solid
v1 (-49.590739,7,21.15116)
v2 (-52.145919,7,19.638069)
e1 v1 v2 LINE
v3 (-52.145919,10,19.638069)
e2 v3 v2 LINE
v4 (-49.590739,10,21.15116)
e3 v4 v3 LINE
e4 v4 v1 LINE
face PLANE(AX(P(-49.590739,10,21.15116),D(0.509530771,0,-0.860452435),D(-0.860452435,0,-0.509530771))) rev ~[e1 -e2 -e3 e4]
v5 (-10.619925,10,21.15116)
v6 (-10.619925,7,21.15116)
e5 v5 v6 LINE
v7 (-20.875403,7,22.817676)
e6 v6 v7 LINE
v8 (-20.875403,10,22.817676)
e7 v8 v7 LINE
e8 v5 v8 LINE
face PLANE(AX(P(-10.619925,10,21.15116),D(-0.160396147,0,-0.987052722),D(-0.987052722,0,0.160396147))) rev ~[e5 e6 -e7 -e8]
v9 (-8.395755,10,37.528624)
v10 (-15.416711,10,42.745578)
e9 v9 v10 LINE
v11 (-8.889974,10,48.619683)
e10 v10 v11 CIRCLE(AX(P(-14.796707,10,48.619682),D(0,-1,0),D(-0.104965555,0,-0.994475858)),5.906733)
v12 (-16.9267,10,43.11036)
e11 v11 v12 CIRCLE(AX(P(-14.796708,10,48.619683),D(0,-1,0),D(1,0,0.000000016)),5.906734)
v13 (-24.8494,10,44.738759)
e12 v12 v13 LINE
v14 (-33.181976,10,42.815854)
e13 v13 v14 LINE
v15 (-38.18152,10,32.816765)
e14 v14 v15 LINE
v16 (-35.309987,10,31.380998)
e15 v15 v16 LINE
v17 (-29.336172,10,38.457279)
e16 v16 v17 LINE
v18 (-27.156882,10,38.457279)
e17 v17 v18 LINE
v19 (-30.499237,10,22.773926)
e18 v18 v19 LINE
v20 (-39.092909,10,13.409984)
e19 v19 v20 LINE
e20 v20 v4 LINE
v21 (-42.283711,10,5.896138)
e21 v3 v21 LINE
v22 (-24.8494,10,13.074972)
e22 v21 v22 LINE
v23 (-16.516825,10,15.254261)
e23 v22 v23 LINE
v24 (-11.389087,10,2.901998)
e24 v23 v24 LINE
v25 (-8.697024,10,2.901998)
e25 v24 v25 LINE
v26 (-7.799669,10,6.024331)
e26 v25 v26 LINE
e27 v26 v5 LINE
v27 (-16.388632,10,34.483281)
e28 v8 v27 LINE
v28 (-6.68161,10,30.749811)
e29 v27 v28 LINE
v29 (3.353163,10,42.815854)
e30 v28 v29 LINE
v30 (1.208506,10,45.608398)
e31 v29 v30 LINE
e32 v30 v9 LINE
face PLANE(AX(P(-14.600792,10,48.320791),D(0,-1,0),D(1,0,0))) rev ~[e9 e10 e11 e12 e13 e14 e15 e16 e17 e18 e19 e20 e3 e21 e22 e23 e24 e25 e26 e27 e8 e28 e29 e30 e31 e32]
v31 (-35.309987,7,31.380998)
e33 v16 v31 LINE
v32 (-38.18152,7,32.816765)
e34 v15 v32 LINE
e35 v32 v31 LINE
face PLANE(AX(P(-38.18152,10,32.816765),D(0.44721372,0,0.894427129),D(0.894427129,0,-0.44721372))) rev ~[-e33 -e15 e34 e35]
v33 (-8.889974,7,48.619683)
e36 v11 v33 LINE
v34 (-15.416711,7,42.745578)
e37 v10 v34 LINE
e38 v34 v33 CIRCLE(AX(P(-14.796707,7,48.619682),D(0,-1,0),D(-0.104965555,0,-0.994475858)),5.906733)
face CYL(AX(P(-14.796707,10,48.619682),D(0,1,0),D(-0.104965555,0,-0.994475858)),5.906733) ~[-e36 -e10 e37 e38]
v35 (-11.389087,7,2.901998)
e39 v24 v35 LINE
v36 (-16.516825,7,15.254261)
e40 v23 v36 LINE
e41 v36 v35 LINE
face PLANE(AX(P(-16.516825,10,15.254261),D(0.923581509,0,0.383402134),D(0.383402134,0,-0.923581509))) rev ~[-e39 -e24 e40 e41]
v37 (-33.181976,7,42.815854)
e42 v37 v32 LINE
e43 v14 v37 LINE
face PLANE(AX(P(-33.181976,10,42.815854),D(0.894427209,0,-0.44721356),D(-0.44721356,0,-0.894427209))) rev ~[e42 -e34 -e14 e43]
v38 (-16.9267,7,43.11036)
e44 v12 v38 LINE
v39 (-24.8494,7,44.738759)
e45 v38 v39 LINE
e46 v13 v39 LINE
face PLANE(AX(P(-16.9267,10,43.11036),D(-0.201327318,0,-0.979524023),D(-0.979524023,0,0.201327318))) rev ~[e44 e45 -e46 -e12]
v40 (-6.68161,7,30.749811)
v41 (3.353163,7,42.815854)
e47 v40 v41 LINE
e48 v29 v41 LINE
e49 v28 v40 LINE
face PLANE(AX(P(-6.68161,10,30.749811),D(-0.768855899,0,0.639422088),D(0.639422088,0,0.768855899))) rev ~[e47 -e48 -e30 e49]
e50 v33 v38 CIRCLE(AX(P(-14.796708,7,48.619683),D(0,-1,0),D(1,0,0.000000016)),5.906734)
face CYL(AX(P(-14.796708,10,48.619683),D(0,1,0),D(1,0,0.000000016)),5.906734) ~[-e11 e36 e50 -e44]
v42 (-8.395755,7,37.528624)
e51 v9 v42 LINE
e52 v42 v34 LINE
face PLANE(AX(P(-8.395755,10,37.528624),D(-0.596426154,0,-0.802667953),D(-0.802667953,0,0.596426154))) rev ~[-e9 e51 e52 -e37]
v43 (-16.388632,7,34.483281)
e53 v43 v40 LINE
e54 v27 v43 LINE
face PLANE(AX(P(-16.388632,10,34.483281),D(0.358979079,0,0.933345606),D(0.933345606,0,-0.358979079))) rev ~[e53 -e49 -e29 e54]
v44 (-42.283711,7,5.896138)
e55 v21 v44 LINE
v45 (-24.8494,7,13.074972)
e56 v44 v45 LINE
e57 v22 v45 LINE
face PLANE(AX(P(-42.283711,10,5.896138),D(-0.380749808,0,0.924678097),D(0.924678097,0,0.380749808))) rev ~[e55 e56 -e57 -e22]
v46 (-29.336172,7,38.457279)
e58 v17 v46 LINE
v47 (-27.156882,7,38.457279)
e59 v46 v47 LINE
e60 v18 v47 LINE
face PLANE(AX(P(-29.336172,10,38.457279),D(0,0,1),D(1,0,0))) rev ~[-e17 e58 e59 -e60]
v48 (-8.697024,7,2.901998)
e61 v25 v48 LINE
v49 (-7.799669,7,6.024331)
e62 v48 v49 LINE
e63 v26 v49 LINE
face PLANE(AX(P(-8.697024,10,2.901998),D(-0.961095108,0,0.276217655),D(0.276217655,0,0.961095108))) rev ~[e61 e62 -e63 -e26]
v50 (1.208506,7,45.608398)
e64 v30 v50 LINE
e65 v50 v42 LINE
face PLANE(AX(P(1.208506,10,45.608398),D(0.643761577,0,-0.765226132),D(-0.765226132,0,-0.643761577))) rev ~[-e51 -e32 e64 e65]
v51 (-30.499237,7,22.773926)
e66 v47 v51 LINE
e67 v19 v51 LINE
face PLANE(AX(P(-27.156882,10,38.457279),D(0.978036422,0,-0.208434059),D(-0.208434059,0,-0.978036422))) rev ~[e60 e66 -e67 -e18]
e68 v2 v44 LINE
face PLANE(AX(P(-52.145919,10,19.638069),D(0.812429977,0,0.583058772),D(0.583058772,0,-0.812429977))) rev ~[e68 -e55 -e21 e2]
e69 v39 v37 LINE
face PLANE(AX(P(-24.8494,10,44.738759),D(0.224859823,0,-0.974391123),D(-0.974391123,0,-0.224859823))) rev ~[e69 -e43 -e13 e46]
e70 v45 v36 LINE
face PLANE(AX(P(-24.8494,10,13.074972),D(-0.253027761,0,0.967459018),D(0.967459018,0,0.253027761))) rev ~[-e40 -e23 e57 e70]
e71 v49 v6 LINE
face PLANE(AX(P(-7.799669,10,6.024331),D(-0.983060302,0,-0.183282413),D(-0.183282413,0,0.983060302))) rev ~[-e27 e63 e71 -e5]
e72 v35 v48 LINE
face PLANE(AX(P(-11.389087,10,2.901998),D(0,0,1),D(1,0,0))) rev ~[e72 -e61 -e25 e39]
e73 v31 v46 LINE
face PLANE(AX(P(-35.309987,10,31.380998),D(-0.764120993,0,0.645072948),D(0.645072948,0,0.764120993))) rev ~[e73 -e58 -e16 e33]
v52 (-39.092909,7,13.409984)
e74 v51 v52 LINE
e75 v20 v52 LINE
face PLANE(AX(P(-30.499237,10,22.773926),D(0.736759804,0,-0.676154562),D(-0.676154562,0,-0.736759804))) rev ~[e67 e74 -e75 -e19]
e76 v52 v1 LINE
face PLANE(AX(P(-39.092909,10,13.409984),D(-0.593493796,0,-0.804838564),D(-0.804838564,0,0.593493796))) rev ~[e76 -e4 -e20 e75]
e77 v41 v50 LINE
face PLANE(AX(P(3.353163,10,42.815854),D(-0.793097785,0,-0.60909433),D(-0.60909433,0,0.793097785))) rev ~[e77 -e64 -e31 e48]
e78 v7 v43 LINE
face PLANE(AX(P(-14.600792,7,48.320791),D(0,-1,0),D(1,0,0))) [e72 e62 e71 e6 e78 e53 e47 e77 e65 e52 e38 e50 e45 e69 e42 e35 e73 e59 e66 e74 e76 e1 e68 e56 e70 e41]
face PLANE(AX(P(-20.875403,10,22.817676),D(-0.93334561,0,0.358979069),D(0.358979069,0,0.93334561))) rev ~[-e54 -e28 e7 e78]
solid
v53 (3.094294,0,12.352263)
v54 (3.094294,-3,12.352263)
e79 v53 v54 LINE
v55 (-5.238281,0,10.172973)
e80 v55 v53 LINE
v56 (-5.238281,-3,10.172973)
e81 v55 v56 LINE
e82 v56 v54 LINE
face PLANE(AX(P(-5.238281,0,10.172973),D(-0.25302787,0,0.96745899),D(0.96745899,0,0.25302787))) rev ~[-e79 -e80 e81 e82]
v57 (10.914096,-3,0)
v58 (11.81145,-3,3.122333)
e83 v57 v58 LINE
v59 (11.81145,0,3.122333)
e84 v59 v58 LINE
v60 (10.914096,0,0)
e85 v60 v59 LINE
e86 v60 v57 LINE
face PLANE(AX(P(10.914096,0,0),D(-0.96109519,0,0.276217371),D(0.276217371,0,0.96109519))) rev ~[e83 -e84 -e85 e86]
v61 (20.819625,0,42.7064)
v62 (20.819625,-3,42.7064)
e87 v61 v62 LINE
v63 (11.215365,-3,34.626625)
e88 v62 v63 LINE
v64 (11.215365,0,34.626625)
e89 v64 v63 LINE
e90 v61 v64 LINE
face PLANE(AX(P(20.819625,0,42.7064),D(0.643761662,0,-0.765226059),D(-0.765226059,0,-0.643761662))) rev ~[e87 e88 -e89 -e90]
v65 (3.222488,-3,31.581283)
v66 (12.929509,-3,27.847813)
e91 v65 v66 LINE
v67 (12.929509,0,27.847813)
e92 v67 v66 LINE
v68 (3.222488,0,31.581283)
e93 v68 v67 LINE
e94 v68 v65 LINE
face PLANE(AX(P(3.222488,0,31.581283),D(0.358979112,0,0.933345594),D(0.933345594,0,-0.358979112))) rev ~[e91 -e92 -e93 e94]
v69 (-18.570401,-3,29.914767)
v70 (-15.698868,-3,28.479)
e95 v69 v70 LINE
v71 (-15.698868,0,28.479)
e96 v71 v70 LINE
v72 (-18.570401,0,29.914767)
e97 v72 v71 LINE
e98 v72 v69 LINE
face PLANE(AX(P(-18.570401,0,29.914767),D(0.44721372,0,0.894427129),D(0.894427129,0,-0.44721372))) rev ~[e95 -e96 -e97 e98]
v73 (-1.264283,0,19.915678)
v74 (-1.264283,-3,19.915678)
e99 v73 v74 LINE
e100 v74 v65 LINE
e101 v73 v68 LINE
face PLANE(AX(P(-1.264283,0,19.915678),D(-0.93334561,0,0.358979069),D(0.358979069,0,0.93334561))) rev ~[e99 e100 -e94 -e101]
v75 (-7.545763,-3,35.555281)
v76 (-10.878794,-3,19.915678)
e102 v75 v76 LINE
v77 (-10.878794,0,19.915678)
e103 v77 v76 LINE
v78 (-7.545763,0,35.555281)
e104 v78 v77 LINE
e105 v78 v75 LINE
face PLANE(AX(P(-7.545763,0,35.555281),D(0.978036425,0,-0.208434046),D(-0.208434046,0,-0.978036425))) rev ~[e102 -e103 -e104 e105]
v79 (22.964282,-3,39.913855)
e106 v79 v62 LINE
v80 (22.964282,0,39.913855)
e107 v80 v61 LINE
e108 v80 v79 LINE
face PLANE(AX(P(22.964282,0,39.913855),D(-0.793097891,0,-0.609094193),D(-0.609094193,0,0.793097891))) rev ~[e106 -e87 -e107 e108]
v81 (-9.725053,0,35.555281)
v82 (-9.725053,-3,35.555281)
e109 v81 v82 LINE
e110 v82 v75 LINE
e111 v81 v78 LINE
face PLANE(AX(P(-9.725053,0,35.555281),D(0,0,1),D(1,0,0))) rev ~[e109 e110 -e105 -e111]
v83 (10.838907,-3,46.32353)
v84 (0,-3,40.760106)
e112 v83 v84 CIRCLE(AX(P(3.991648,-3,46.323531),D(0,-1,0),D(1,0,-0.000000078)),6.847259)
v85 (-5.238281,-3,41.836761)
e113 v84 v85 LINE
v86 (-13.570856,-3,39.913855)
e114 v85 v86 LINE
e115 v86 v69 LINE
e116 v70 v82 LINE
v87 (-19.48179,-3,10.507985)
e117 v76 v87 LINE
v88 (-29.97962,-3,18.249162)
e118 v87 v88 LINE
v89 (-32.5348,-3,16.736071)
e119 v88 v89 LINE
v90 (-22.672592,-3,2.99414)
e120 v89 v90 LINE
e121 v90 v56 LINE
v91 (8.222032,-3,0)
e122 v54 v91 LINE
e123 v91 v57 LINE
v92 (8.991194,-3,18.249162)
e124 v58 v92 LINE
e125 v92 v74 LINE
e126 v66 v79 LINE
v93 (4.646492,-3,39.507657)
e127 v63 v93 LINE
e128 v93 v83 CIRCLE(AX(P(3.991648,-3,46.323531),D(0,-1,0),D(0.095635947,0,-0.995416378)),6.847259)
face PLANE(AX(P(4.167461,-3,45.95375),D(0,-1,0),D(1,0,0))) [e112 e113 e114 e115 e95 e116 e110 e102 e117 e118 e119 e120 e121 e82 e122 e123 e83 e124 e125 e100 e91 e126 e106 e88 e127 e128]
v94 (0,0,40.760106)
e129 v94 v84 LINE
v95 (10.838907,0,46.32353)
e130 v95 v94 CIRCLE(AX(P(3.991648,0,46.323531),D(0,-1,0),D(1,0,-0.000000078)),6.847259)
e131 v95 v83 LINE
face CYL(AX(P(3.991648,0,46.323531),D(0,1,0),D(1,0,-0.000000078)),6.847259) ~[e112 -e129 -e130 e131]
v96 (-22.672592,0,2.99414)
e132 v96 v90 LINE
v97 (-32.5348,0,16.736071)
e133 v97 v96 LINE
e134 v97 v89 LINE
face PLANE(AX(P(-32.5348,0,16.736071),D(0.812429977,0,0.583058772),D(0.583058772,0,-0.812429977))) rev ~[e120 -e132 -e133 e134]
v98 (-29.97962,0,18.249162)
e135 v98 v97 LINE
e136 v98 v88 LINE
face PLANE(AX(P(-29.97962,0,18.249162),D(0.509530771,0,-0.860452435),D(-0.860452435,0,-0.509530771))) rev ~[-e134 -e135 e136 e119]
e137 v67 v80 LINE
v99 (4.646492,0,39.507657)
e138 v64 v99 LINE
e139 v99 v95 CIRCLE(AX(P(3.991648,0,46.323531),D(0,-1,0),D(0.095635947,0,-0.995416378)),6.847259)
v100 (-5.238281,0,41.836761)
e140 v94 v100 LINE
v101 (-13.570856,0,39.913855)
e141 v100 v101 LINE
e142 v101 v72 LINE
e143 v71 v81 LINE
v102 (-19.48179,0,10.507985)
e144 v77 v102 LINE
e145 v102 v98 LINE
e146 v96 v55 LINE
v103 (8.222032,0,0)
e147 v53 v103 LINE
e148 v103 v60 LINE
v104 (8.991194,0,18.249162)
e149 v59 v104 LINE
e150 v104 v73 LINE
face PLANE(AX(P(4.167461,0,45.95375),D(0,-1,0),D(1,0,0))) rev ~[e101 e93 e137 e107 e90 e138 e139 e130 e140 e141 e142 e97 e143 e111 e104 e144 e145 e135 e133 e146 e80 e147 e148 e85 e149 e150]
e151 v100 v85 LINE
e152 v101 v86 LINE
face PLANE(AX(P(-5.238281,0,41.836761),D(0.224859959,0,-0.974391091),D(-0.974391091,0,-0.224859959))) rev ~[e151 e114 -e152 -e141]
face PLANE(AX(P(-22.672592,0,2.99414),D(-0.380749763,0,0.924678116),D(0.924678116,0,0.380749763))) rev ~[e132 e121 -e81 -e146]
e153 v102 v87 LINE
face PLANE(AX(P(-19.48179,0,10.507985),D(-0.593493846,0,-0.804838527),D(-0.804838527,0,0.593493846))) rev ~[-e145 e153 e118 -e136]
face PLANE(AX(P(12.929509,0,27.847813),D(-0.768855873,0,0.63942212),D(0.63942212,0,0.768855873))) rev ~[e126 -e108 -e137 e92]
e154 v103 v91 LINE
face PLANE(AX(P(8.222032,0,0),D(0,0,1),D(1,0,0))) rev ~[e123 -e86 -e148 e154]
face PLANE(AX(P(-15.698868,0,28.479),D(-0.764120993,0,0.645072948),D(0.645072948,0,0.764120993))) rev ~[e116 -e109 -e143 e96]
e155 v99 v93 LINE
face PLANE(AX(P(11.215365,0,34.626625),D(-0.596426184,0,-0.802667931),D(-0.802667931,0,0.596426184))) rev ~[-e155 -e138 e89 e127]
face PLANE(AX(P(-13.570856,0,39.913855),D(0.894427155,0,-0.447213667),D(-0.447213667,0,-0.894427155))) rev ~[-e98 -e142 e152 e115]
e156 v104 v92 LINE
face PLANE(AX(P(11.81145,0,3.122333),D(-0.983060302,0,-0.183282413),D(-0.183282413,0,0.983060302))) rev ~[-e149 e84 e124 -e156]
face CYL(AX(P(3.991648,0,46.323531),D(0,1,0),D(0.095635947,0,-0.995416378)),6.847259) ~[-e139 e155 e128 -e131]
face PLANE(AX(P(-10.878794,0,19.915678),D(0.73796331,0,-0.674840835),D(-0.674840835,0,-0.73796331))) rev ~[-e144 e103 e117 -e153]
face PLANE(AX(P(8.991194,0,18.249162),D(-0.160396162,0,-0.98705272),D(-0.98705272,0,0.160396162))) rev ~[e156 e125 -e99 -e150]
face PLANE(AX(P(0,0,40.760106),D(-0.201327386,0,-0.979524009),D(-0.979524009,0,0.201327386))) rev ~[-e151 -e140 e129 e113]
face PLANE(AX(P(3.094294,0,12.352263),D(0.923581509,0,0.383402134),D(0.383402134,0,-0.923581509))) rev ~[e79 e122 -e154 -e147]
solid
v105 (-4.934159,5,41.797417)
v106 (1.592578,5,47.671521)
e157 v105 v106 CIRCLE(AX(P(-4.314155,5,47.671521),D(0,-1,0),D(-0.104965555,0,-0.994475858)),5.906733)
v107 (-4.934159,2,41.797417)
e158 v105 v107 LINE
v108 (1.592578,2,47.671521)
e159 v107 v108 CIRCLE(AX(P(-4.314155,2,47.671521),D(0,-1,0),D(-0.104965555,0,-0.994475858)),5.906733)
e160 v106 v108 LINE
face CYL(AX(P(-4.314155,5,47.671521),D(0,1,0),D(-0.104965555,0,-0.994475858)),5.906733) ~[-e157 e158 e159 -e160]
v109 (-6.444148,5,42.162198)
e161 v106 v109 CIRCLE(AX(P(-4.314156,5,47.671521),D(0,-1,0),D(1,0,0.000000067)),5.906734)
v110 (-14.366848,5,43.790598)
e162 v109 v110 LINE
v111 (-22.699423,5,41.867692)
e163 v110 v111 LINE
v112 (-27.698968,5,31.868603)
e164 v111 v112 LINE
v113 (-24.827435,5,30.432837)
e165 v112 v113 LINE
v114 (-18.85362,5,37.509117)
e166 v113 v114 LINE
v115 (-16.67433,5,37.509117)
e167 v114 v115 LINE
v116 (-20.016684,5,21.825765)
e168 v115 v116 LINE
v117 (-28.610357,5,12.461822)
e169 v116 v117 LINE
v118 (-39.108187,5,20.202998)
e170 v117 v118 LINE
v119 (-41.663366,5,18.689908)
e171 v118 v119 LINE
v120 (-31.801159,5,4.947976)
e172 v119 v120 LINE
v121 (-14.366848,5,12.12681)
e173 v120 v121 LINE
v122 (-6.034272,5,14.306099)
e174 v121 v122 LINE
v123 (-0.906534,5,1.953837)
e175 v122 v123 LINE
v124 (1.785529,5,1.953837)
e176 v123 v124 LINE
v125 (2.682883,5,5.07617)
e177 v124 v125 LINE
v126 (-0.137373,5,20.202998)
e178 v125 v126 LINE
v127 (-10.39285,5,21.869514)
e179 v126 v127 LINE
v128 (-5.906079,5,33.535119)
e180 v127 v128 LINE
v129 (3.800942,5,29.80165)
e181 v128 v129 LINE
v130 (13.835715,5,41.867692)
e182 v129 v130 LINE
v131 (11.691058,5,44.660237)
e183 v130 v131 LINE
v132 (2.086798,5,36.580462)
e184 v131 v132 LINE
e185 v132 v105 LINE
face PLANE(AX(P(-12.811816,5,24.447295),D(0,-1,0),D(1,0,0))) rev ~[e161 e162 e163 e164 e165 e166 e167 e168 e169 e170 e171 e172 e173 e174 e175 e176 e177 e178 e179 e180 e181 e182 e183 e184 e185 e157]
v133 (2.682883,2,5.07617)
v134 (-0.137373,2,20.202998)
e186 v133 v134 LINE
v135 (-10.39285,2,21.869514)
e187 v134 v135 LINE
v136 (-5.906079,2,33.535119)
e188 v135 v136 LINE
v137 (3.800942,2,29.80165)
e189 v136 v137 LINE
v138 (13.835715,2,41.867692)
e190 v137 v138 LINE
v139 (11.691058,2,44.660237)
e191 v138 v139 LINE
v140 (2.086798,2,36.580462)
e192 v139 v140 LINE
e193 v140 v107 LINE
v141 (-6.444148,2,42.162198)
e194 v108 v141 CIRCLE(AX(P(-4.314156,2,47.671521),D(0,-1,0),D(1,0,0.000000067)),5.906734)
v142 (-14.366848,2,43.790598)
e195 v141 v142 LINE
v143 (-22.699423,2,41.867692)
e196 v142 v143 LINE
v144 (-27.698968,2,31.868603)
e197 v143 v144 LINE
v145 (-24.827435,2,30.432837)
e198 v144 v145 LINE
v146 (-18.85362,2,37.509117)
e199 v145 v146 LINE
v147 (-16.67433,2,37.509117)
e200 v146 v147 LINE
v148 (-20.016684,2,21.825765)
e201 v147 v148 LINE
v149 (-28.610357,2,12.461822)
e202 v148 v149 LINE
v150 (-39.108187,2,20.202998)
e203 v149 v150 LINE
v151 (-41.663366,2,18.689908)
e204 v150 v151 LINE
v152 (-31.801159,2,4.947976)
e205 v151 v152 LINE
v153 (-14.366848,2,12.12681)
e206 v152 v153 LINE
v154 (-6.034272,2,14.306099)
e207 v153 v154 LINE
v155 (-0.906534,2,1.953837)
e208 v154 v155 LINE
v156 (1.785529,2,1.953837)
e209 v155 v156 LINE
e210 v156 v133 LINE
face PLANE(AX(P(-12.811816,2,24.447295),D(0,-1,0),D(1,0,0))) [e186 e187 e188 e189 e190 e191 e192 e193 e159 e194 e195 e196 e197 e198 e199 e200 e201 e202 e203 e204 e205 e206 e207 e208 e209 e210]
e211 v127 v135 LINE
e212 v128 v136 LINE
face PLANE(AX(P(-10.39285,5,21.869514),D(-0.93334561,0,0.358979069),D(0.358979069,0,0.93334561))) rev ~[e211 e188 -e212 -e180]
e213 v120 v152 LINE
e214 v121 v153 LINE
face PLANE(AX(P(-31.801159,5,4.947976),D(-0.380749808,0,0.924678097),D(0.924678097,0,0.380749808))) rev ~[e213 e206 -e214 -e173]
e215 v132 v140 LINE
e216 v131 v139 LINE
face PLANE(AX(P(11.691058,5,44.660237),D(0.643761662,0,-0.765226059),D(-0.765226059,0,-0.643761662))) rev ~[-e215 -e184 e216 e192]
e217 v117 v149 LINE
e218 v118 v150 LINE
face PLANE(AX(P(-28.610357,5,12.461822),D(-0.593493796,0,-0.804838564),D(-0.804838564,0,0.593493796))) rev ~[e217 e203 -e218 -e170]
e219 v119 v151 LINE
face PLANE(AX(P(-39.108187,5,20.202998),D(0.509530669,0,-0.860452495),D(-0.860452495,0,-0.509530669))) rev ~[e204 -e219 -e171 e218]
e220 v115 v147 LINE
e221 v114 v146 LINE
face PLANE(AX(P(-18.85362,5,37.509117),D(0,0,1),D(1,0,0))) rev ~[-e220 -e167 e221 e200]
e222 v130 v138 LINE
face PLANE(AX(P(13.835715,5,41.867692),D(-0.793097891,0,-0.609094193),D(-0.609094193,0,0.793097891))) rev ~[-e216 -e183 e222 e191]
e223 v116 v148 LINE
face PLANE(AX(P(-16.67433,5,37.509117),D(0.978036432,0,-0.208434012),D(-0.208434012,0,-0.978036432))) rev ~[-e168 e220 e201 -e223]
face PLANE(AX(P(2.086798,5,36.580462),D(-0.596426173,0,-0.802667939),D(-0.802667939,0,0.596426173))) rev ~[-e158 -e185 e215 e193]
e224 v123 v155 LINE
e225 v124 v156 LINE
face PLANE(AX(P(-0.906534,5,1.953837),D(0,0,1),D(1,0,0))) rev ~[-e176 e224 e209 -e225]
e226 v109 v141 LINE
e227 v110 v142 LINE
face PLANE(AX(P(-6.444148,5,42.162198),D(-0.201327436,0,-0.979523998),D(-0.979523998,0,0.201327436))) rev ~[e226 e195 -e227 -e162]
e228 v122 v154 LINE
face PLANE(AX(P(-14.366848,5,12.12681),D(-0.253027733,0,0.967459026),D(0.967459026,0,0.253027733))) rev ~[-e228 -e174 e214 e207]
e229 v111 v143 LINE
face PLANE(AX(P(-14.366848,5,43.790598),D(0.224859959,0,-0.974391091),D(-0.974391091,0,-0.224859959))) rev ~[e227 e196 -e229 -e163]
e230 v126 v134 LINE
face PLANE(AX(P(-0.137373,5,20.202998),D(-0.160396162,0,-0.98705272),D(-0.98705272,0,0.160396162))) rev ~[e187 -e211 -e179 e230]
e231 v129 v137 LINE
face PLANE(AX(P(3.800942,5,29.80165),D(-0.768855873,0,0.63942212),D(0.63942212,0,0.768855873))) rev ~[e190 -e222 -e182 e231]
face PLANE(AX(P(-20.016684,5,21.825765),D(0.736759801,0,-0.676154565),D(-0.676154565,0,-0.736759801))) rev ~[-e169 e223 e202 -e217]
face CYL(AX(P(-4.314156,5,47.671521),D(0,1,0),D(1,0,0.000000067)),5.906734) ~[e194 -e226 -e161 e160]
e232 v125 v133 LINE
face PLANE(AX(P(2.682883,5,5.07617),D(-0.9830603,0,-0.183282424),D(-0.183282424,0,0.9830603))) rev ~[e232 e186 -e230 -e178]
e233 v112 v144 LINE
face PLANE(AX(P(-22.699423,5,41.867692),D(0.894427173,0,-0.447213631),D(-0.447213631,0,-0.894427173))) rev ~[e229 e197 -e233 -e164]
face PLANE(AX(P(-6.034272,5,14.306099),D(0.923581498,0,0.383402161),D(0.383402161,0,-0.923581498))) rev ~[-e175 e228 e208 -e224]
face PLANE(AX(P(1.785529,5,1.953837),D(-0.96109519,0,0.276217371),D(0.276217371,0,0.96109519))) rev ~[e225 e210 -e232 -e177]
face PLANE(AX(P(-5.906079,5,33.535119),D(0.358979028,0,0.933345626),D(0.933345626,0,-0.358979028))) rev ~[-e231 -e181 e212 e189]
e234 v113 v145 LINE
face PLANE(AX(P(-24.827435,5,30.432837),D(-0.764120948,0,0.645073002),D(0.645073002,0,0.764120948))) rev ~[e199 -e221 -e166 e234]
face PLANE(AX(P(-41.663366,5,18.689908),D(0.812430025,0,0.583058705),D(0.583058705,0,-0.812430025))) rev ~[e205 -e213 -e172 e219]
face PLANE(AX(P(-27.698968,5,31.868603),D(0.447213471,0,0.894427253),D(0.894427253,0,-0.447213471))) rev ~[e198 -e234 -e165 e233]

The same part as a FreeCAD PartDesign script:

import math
import FreeCAD as App
import Part
import Sketcher

V = App.Vector
Q = App.Units.Quantity

doc = App.newDocument("Part")
body = doc.addObject("PartDesign::Body", "Body")

# Sketch on XZ plane
sketch1 = body.newObject("Sketcher::SketchObject", "Sketch")
sketch1.AttachmentSupport = (doc.getObject("XZ_Plane"), [""])
sketch1.MapMode = "FlatFace"
sketch1.addGeometry(Part.ArcOfCircle(Part.Circle(V(3.991648, 46.323531, 0), V(0, 0, 1), 6.847259), math.radians(-84.512076), math.radians(-0.000007)), False)
sketch1.addGeometry(Part.ArcOfCircle(Part.Circle(V(3.991648, 46.323531, 0), V(0, 0, 1), 6.847259), math.radians(-0.000004), math.radians(234.341299)), False)
sketch1.addGeometry(Part.LineSegment(V(0, 40.760106, 0), V(-5.238281, 41.836761, 0)), False)
sketch1.addGeometry(Part.LineSegment(V(-5.238281, 41.836761, 0), V(-13.570856, 39.913855, 0)), False)
sketch1.addGeometry(Part.LineSegment(V(-13.570856, 39.913855, 0), V(-18.570401, 29.914767, 0)), False)
sketch1.addGeometry(Part.LineSegment(V(-18.570401, 29.914767, 0), V(-15.698868, 28.479, 0)), False)
sketch1.addGeometry(Part.LineSegment(V(-15.698868, 28.479, 0), V(-9.725053, 35.555281, 0)), False)
sketch1.addGeometry(Part.LineSegment(V(-9.725053, 35.555281, 0), V(-7.545763, 35.555281, 0)), False)
sketch1.addGeometry(Part.LineSegment(V(-7.545763, 35.555281, 0), V(-10.878794, 19.915678, 0)), False)
sketch1.addGeometry(Part.LineSegment(V(-10.878794, 19.915678, 0), V(-19.48179, 10.507985, 0)), False)
sketch1.addGeometry(Part.LineSegment(V(-19.48179, 10.507985, 0), V(-29.97962, 18.249162, 0)), False)
sketch1.addGeometry(Part.LineSegment(V(-29.97962, 18.249162, 0), V(-32.5348, 16.736071, 0)), False)
sketch1.addGeometry(Part.LineSegment(V(-32.5348, 16.736071, 0), V(-22.672592, 2.99414, 0)), False)
sketch1.addGeometry(Part.LineSegment(V(-22.672592, 2.99414, 0), V(-5.238281, 10.172973, 0)), False)
sketch1.addGeometry(Part.LineSegment(V(-5.238281, 10.172973, 0), V(3.094294, 12.352263, 0)), False)
sketch1.addGeometry(Part.LineSegment(V(3.094294, 12.352263, 0), V(8.222032, 0, 0)), False)
sketch1.addGeometry(Part.LineSegment(V(8.222032, 0, 0), V(10.914096, 0, 0)), False)
sketch1.addGeometry(Part.LineSegment(V(10.914096, 0, 0), V(11.81145, 3.122333, 0)), False)
sketch1.addGeometry(Part.LineSegment(V(11.81145, 3.122333, 0), V(8.991194, 18.249162, 0)), False)
sketch1.addGeometry(Part.LineSegment(V(8.991194, 18.249162, 0), V(-1.264283, 19.915678, 0)), False)
sketch1.addGeometry(Part.LineSegment(V(-1.264283, 19.915678, 0), V(3.222488, 31.581283, 0)), False)
sketch1.addGeometry(Part.LineSegment(V(3.222488, 31.581283, 0), V(12.929509, 27.847813, 0)), False)
sketch1.addGeometry(Part.LineSegment(V(12.929509, 27.847813, 0), V(22.964282, 39.913855, 0)), False)
sketch1.addGeometry(Part.LineSegment(V(22.964282, 39.913855, 0), V(20.819625, 42.7064, 0)), False)
sketch1.addGeometry(Part.LineSegment(V(20.819625, 42.7064, 0), V(11.215365, 34.626625, 0)), False)
sketch1.addGeometry(Part.LineSegment(V(11.215365, 34.626625, 0), V(4.646492, 39.507657, 0)), False)
sketch1.addConstraint(Sketcher.Constraint("Tangent", 0, 2, 1, 1))
sketch1.addConstraint(Sketcher.Constraint("Coincident", 1, 2, 2, 1))
sketch1.addConstraint(Sketcher.Constraint("Coincident", 2, 2, 3, 1))
sketch1.addConstraint(Sketcher.Constraint("Coincident", 3, 2, 4, 1))
sketch1.addConstraint(Sketcher.Constraint("Coincident", 4, 2, 5, 1))
sketch1.addConstraint(Sketcher.Constraint("Coincident", 5, 2, 6, 1))
sketch1.addConstraint(Sketcher.Constraint("Coincident", 6, 2, 7, 1))
sketch1.addConstraint(Sketcher.Constraint("Coincident", 7, 2, 8, 1))
sketch1.addConstraint(Sketcher.Constraint("Coincident", 8, 2, 9, 1))
sketch1.addConstraint(Sketcher.Constraint("Coincident", 9, 2, 10, 1))
sketch1.addConstraint(Sketcher.Constraint("Coincident", 10, 2, 11, 1))
sketch1.addConstraint(Sketcher.Constraint("Coincident", 11, 2, 12, 1))
sketch1.addConstraint(Sketcher.Constraint("Coincident", 12, 2, 13, 1))
sketch1.addConstraint(Sketcher.Constraint("Coincident", 13, 2, 14, 1))
sketch1.addConstraint(Sketcher.Constraint("Coincident", 14, 2, 15, 1))
sketch1.addConstraint(Sketcher.Constraint("Coincident", 15, 2, 16, 1))
sketch1.addConstraint(Sketcher.Constraint("Coincident", 16, 2, 17, 1))
sketch1.addConstraint(Sketcher.Constraint("Coincident", 17, 2, 18, 1))
sketch1.addConstraint(Sketcher.Constraint("Coincident", 18, 2, 19, 1))
sketch1.addConstraint(Sketcher.Constraint("Coincident", 19, 2, 20, 1))
sketch1.addConstraint(Sketcher.Constraint("Coincident", 20, 2, 21, 1))
sketch1.addConstraint(Sketcher.Constraint("Coincident", 21, 2, 22, 1))
sketch1.addConstraint(Sketcher.Constraint("Coincident", 22, 2, 23, 1))
sketch1.addConstraint(Sketcher.Constraint("Coincident", 23, 2, 24, 1))
sketch1.addConstraint(Sketcher.Constraint("Coincident", 24, 2, 25, 1))
sketch1.addConstraint(Sketcher.Constraint("Coincident", 25, 2, 0, 1))
sketch1.addConstraint(Sketcher.Constraint("Horizontal", 7))
sketch1.addConstraint(Sketcher.Constraint("Horizontal", 16))
sketch1.addConstraint(Sketcher.Constraint("Equal", 0, 1))
sketch1.addConstraint(Sketcher.Constraint("PointOnObject", 1, 2, -2))
sketch1.addConstraint(Sketcher.Constraint("PointOnObject", 15, 2, -1))
sketch1.addConstraint(Sketcher.Constraint("Perpendicular", 4, 5))
sketch1.addConstraint(Sketcher.Constraint("Perpendicular", 20, 21))
sketch1.addConstraint(Sketcher.Constraint("Horizontal", 1, 3, 0, 2))
sketch1.addConstraint(Sketcher.Constraint("Horizontal", 10, 2, 18, 2))
sketch1.addConstraint(Sketcher.Constraint("Horizontal", 8, 2, 19, 2))
sketch1.addConstraint(Sketcher.Constraint("Horizontal", 3, 2, 22, 2))
sketch1.addConstraint(Sketcher.Constraint("Vertical", 2, 2, 13, 2))
sketch1.addConstraint(Sketcher.Constraint("Distance", 19, Q("10.389999 mm")))
sketch1.addConstraint(Sketcher.Constraint("Radius", 0, Q("6.847259 mm")))
sketch1.addConstraint(Sketcher.Constraint("DistanceY", -1, 1, 5, 2, Q("28.479 mm")))
sketch1.addConstraint(Sketcher.Constraint("DistanceY", 20, 2, 7, 2, Q("3.973998 mm")))
sketch1.addConstraint(Sketcher.Constraint("Distance", 10, Q("13.043399 mm")))
sketch1.addConstraint(Sketcher.Constraint("Distance", 20, Q("12.498698 mm")))
sketch1.addConstraint(Sketcher.Constraint("Distance", 25, Q("8.183799 mm")))
sketch1.addConstraint(Sketcher.Constraint("DistanceX", 7, 1, 7, 2, Q("2.17929 mm")))
sketch1.addConstraint(Sketcher.Constraint("DistanceX", 4, 2, -1, 1, Q("18.570401 mm")))
sketch1.addConstraint(Sketcher.Constraint("DistanceX", 11, 2, -1, 1, Q("32.5348 mm")))
sketch1.addConstraint(Sketcher.Constraint("DistanceY", -1, 1, 23, 2, Q("42.7064 mm")))
sketch1.addConstraint(Sketcher.Constraint("DistanceX", 12, 2, 8, 2, Q("11.793798 mm")))
sketch1.addConstraint(Sketcher.Constraint("DistanceX", 14, 2, 18, 2, Q("5.8969 mm")))
sketch1.addConstraint(Sketcher.Constraint("DistanceY", 14, 2, 18, 2, Q("5.896899 mm")))
sketch1.addConstraint(Sketcher.Constraint("Distance", 3, Q("8.551571 mm")))
sketch1.addConstraint(Sketcher.Constraint("Distance", 4, Q("11.179321 mm")))
sketch1.addConstraint(Sketcher.Constraint("Distance", 5, Q("3.210472 mm")))
sketch1.addConstraint(Sketcher.Constraint("Distance", 6, Q("9.260681 mm")))
sketch1.addConstraint(Sketcher.Constraint("Distance", 8, Q("15.990819 mm")))
sketch1.addConstraint(Sketcher.Constraint("Distance", 18, Q("15.387488 mm")))
sketch1.addConstraint(Sketcher.Constraint("Distance", 23, Q("3.52106 mm")))
sketch1.addConstraint(Sketcher.Constraint("Distance", 24, Q("12.550879 mm")))
sketch1.addConstraint(Sketcher.Constraint("DistanceX", 16, 1, 16, 2, Q("2.692064 mm")))
sketch1.addConstraint(Sketcher.Constraint("DistanceY", -1, 1, 0, 3, Q("46.323531 mm")))
sketch1.addConstraint(Sketcher.Constraint("DistanceX", -1, 1, 1, 3, Q("3.991648 mm")))
sketch1.addConstraint(Sketcher.Constraint("DistanceX", 2, 2, -1, 1, Q("5.238281 mm")))
sketch1.addConstraint(Sketcher.Constraint("DistanceY", -1, 1, 2, 2, Q("41.836761 mm")))
sketch1.addConstraint(Sketcher.Constraint("DistanceY", -1, 1, 6, 2, Q("35.555281 mm")))
sketch1.addConstraint(Sketcher.Constraint("DistanceY", -1, 1, 8, 2, Q("19.915678 mm")))
sketch1.addConstraint(Sketcher.Constraint("DistanceX", 9, 2, -1, 1, Q("19.48179 mm")))
sketch1.addConstraint(Sketcher.Constraint("DistanceX", 10, 2, -1, 1, Q("29.97962 mm")))
sketch1.addConstraint(Sketcher.Constraint("DistanceY", -1, 1, 10, 2, Q("18.249162 mm")))
sketch1.addConstraint(Sketcher.Constraint("DistanceY", -1, 1, 11, 2, Q("16.736071 mm")))
sketch1.addConstraint(Sketcher.Constraint("DistanceY", -1, 1, 12, 2, Q("2.99414 mm")))
sketch1.addConstraint(Sketcher.Constraint("DistanceX", -1, 1, 17, 2, Q("11.81145 mm")))
sketch1.addConstraint(Sketcher.Constraint("DistanceX", -1, 1, 21, 2, Q("12.929509 mm")))
sketch1.addConstraint(Sketcher.Constraint("DistanceY", 13, 2, 9, 2, Q("0.335012 mm")))
sketch1.addConstraint(Sketcher.Constraint("DistanceX", 5, 2, 14, 2, Q("18.793162 mm")))
sketch1.addConstraint(Sketcher.Constraint("DistanceX", 14, 2, 15, 2, Q("5.127738 mm")))
sketch1.addConstraint(Sketcher.Constraint("DistanceX", 0, 2, 23, 2, Q("9.980718 mm")))
sketch1.addConstraint(Sketcher.Constraint("DistanceY", 21, 2, 24, 2, Q("6.778812 mm")))
pad1 = body.newObject("PartDesign::Pad", "Pad")
pad1.Profile = sketch1
pad1.Length = 3
body2 = doc.addObject("PartDesign::Body", "Body001")

# Sketch on XZ plane
sketch2 = body2.newObject("Sketcher::SketchObject", "Sketch001")
sketch2.AttachmentSupport = (doc.getObject("XZ_Plane001"), [""])
sketch2.MapMode = "FlatFace"
sketch2.AttachmentOffset = App.Placement(V(0, 0, -5), App.Rotation())
sketch2.addGeometry(Part.LineSegment(V(-6.444148, 42.162198, 0), V(-14.366848, 43.790598, 0)), False)
sketch2.addGeometry(Part.LineSegment(V(-14.366848, 43.790598, 0), V(-22.699423, 41.867692, 0)), False)
sketch2.addGeometry(Part.LineSegment(V(-22.699423, 41.867692, 0), V(-27.698968, 31.868603, 0)), False)
sketch2.addGeometry(Part.LineSegment(V(-27.698968, 31.868603, 0), V(-24.827435, 30.432837, 0)), False)
sketch2.addGeometry(Part.LineSegment(V(-24.827435, 30.432837, 0), V(-18.85362, 37.509117, 0)), False)
sketch2.addGeometry(Part.LineSegment(V(-18.85362, 37.509117, 0), V(-16.67433, 37.509117, 0)), False)
sketch2.addGeometry(Part.LineSegment(V(-16.67433, 37.509117, 0), V(-20.016684, 21.825765, 0)), False)
sketch2.addGeometry(Part.LineSegment(V(-20.016684, 21.825765, 0), V(-28.610357, 12.461822, 0)), False)
sketch2.addGeometry(Part.LineSegment(V(-28.610357, 12.461822, 0), V(-39.108187, 20.202998, 0)), False)
sketch2.addGeometry(Part.LineSegment(V(-39.108187, 20.202998, 0), V(-41.663366, 18.689908, 0)), False)
sketch2.addGeometry(Part.LineSegment(V(-41.663366, 18.689908, 0), V(-31.801159, 4.947976, 0)), False)
sketch2.addGeometry(Part.LineSegment(V(-31.801159, 4.947976, 0), V(-14.366848, 12.12681, 0)), False)
sketch2.addGeometry(Part.LineSegment(V(-14.366848, 12.12681, 0), V(-6.034272, 14.306099, 0)), False)
sketch2.addGeometry(Part.LineSegment(V(-6.034272, 14.306099, 0), V(-0.906534, 1.953837, 0)), False)
sketch2.addGeometry(Part.LineSegment(V(-0.906534, 1.953837, 0), V(1.785529, 1.953837, 0)), False)
sketch2.addGeometry(Part.LineSegment(V(1.785529, 1.953837, 0), V(2.682883, 5.07617, 0)), False)
sketch2.addGeometry(Part.LineSegment(V(2.682883, 5.07617, 0), V(-0.137373, 20.202998, 0)), False)
sketch2.addGeometry(Part.LineSegment(V(-0.137373, 20.202998, 0), V(-10.39285, 21.869514, 0)), False)
sketch2.addGeometry(Part.LineSegment(V(-10.39285, 21.869514, 0), V(-5.906079, 33.535119, 0)), False)
sketch2.addGeometry(Part.LineSegment(V(-5.906079, 33.535119, 0), V(3.800942, 29.80165, 0)), False)
sketch2.addGeometry(Part.LineSegment(V(3.800942, 29.80165, 0), V(13.835715, 41.867692, 0)), False)
sketch2.addGeometry(Part.LineSegment(V(13.835715, 41.867692, 0), V(11.691058, 44.660237, 0)), False)
sketch2.addGeometry(Part.LineSegment(V(11.691058, 44.660237, 0), V(2.086798, 36.580462, 0)), False)
sketch2.addGeometry(Part.LineSegment(V(2.086798, 36.580462, 0), V(-4.934159, 41.797417, 0)), False)
sketch2.addGeometry(Part.ArcOfCircle(Part.Circle(V(-4.314155, 47.671521, 0), V(0, 0, 1), 5.906733), math.radians(-96.025182), math.radians(0.000002)), False)
sketch2.addGeometry(Part.ArcOfCircle(Part.Circle(V(-4.314156, 47.671521, 0), V(0, 0, 1), 5.906734), math.radians(0.000004), math.radians(248.8627)), False)
sketch2.addConstraint(Sketcher.Constraint("Coincident", 0, 2, 1, 1))
sketch2.addConstraint(Sketcher.Constraint("Coincident", 1, 2, 2, 1))
sketch2.addConstraint(Sketcher.Constraint("Coincident", 2, 2, 3, 1))
sketch2.addConstraint(Sketcher.Constraint("Coincident", 3, 2, 4, 1))
sketch2.addConstraint(Sketcher.Constraint("Coincident", 4, 2, 5, 1))
sketch2.addConstraint(Sketcher.Constraint("Coincident", 5, 2, 6, 1))
sketch2.addConstraint(Sketcher.Constraint("Coincident", 6, 2, 7, 1))
sketch2.addConstraint(Sketcher.Constraint("Coincident", 7, 2, 8, 1))
sketch2.addConstraint(Sketcher.Constraint("Coincident", 8, 2, 9, 1))
sketch2.addConstraint(Sketcher.Constraint("Coincident", 9, 2, 10, 1))
sketch2.addConstraint(Sketcher.Constraint("Coincident", 10, 2, 11, 1))
sketch2.addConstraint(Sketcher.Constraint("Coincident", 11, 2, 12, 1))
sketch2.addConstraint(Sketcher.Constraint("Coincident", 12, 2, 13, 1))
sketch2.addConstraint(Sketcher.Constraint("Coincident", 13, 2, 14, 1))
sketch2.addConstraint(Sketcher.Constraint("Coincident", 14, 2, 15, 1))
sketch2.addConstraint(Sketcher.Constraint("Coincident", 15, 2, 16, 1))
sketch2.addConstraint(Sketcher.Constraint("Coincident", 16, 2, 17, 1))
sketch2.addConstraint(Sketcher.Constraint("Coincident", 17, 2, 18, 1))
sketch2.addConstraint(Sketcher.Constraint("Coincident", 18, 2, 19, 1))
sketch2.addConstraint(Sketcher.Constraint("Coincident", 19, 2, 20, 1))
sketch2.addConstraint(Sketcher.Constraint("Coincident", 20, 2, 21, 1))
sketch2.addConstraint(Sketcher.Constraint("Coincident", 21, 2, 22, 1))
sketch2.addConstraint(Sketcher.Constraint("Coincident", 22, 2, 23, 1))
sketch2.addConstraint(Sketcher.Constraint("Coincident", 23, 2, 24, 1))
sketch2.addConstraint(Sketcher.Constraint("Tangent", 24, 2, 25, 1))
sketch2.addConstraint(Sketcher.Constraint("Coincident", 25, 2, 0, 1))
sketch2.addConstraint(Sketcher.Constraint("Horizontal", 5))
sketch2.addConstraint(Sketcher.Constraint("Horizontal", 14))
sketch2.addConstraint(Sketcher.Constraint("Equal", 24, 25))
sketch2.addConstraint(Sketcher.Constraint("Perpendicular", 2, 3))
sketch2.addConstraint(Sketcher.Constraint("Perpendicular", 18, 19))
sketch2.addConstraint(Sketcher.Constraint("Horizontal", 8, 2, 16, 2))
sketch2.addConstraint(Sketcher.Constraint("Horizontal", 1, 2, 20, 2))
sketch2.addConstraint(Sketcher.Constraint("Horizontal", 25, 3, 24, 2))
sketch2.addConstraint(Sketcher.Constraint("Vertical", 0, 2, 11, 2))
sketch2.addConstraint(Sketcher.Constraint("Distance", 17, Q("10.389999 mm")))
sketch2.addConstraint(Sketcher.Constraint("DistanceY", -1, 1, 8, 2, Q("20.202998 mm")))
sketch2.addConstraint(Sketcher.Constraint("Radius", 24, Q("5.906733 mm")))
sketch2.addConstraint(Sketcher.Constraint("DistanceY", 18, 2, 5, 2, Q("3.973998 mm")))
sketch2.addConstraint(Sketcher.Constraint("Distance", 8, Q("13.043398 mm")))
sketch2.addConstraint(Sketcher.Constraint("Distance", 18, Q("12.498698 mm")))
sketch2.addConstraint(Sketcher.Constraint("DistanceX", 5, 1, 5, 2, Q("2.17929 mm")))
sketch2.addConstraint(Sketcher.Constraint("DistanceY", -1, 1, 0, 2, Q("43.790598 mm")))
sketch2.addConstraint(Sketcher.Constraint("DistanceY", -1, 1, 12, 2, Q("14.306099 mm")))
sketch2.addConstraint(Sketcher.Constraint("DistanceY", -1, 1, 25, 2, Q("42.162198 mm")))
sketch2.addConstraint(Sketcher.Constraint("DistanceX", 9, 2, 2, 2, Q("13.964398 mm")))
sketch2.addConstraint(Sketcher.Constraint("DistanceX", 10, 2, 7, 2, Q("3.190802 mm")))
sketch2.addConstraint(Sketcher.Constraint("DistanceX", 12, 2, 14, 2, Q("7.819801 mm")))
sketch2.addConstraint(Sketcher.Constraint("DistanceX", 12, 2, 16, 2, Q("5.896899 mm")))
sketch2.addConstraint(Sketcher.Constraint("DistanceY", 18, 2, 25, 3, Q("14.136402 mm")))
sketch2.addConstraint(Sketcher.Constraint("DistanceY", 18, 2, 23, 2, Q("8.262298 mm")))
sketch2.addConstraint(Sketcher.Constraint("DistanceX", 0, 2, 25, 2, Q("7.9227 mm")))
sketch2.addConstraint(Sketcher.Constraint("Distance", 1, Q("8.551571 mm")))
sketch2.addConstraint(Sketcher.Constraint("Distance", 2, Q("11.179322 mm")))
sketch2.addConstraint(Sketcher.Constraint("Distance", 3, Q("3.210471 mm")))
sketch2.addConstraint(Sketcher.Constraint("Distance", 4, Q("9.260681 mm")))
sketch2.addConstraint(Sketcher.Constraint("Distance", 6, Q("16.03555 mm")))
sketch2.addConstraint(Sketcher.Constraint("Distance", 7, Q("12.709628 mm")))
sketch2.addConstraint(Sketcher.Constraint("Distance", 21, Q("3.52106 mm")))
sketch2.addConstraint(Sketcher.Constraint("Distance", 22, Q("12.550879 mm")))
sketch2.addConstraint(Sketcher.Constraint("DistanceX", 14, 1, 14, 2, Q("2.692063 mm")))
sketch2.addConstraint(Sketcher.Constraint("DistanceY", -1, 1, 24, 3, Q("47.671521 mm")))
sketch2.addConstraint(Sketcher.Constraint("DistanceY", -1, 1, 1, 2, Q("41.867692 mm")))
sketch2.addConstraint(Sketcher.Constraint("DistanceX", 2, 2, -1, 1, Q("27.698968 mm")))
sketch2.addConstraint(Sketcher.Constraint("DistanceX", 4, 2, -1, 1, Q("18.85362 mm")))
sketch2.addConstraint(Sketcher.Constraint("DistanceX", 10, 2, -1, 1, Q("31.801159 mm")))
sketch2.addConstraint(Sketcher.Constraint("DistanceY", -1, 1, 11, 2, Q("12.12681 mm")))
sketch2.addConstraint(Sketcher.Constraint("DistanceX", 12, 2, -1, 1, Q("6.034272 mm")))
sketch2.addConstraint(Sketcher.Constraint("DistanceY", -1, 1, 15, 2, Q("5.07617 mm")))
sketch2.addConstraint(Sketcher.Constraint("DistanceX", 17, 2, -1, 1, Q("10.39285 mm")))
sketch2.addConstraint(Sketcher.Constraint("DistanceX", -1, 1, 19, 2, Q("3.800942 mm")))
sketch2.addConstraint(Sketcher.Constraint("DistanceY", -1, 1, 22, 2, Q("36.580462 mm")))
sketch2.addConstraint(Sketcher.Constraint("DistanceX", 3, 2, 6, 2, Q("4.810751 mm")))
sketch2.addConstraint(Sketcher.Constraint("DistanceY", 9, 2, 8, 2, Q("1.51309 mm")))
sketch2.addConstraint(Sketcher.Constraint("DistanceY", 10, 2, 9, 2, Q("13.741932 mm")))
sketch2.addConstraint(Sketcher.Constraint("DistanceY", 13, 2, 6, 2, Q("19.871928 mm")))
sketch2.addConstraint(Sketcher.Constraint("DistanceX", 11, 2, 15, 2, Q("17.049731 mm")))
sketch2.addConstraint(Sketcher.Constraint("DistanceX", 24, 3, 20, 2, Q("18.14987 mm")))
sketch2.addConstraint(Sketcher.Constraint("DistanceX", 22, 2, 21, 2, Q("9.60426 mm")))
pad2 = body2.newObject("PartDesign::Pad", "Pad001")
pad2.Profile = sketch2
pad2.Length = 3
body3 = doc.addObject("PartDesign::Body", "Body002")

# Sketch on XZ plane
sketch3 = body3.newObject("Sketcher::SketchObject", "Sketch002")
sketch3.AttachmentSupport = (doc.getObject("XZ_Plane002"), [""])
sketch3.MapMode = "FlatFace"
sketch3.AttachmentOffset = App.Placement(V(0, 0, -10), App.Rotation())
sketch3.addGeometry(Part.ArcOfCircle(Part.Circle(V(-14.796707, 48.619682, 0), V(0, 0, 1), 5.906733), math.radians(-96.025182), math.radians(0.000012)), False)
sketch3.addGeometry(Part.ArcOfCircle(Part.Circle(V(-14.796708, 48.619683, 0), V(0, 0, 1), 5.906734), math.radians(0.000001), math.radians(248.862703)), False)
sketch3.addGeometry(Part.LineSegment(V(-16.9267, 43.11036, 0), V(-24.8494, 44.738759, 0)), False)
sketch3.addGeometry(Part.LineSegment(V(-24.8494, 44.738759, 0), V(-33.181976, 42.815854, 0)), False)
sketch3.addGeometry(Part.LineSegment(V(-33.181976, 42.815854, 0), V(-38.18152, 32.816765, 0)), False)
sketch3.addGeometry(Part.LineSegment(V(-38.18152, 32.816765, 0), V(-35.309987, 31.380998, 0)), False)
sketch3.addGeometry(Part.LineSegment(V(-35.309987, 31.380998, 0), V(-29.336172, 38.457279, 0)), False)
sketch3.addGeometry(Part.LineSegment(V(-29.336172, 38.457279, 0), V(-27.156882, 38.457279, 0)), False)
sketch3.addGeometry(Part.LineSegment(V(-27.156882, 38.457279, 0), V(-30.499237, 22.773926, 0)), False)
sketch3.addGeometry(Part.LineSegment(V(-30.499237, 22.773926, 0), V(-39.092909, 13.409984, 0)), False)
sketch3.addGeometry(Part.LineSegment(V(-39.092909, 13.409984, 0), V(-49.590739, 21.15116, 0)), False)
sketch3.addGeometry(Part.LineSegment(V(-49.590739, 21.15116, 0), V(-52.145919, 19.638069, 0)), False)
sketch3.addGeometry(Part.LineSegment(V(-52.145919, 19.638069, 0), V(-42.283711, 5.896138, 0)), False)
sketch3.addGeometry(Part.LineSegment(V(-42.283711, 5.896138, 0), V(-24.8494, 13.074972, 0)), False)
sketch3.addGeometry(Part.LineSegment(V(-24.8494, 13.074972, 0), V(-16.516825, 15.254261, 0)), False)
sketch3.addGeometry(Part.LineSegment(V(-16.516825, 15.254261, 0), V(-11.389087, 2.901998, 0)), False)
sketch3.addGeometry(Part.LineSegment(V(-11.389087, 2.901998, 0), V(-8.697024, 2.901998, 0)), False)
sketch3.addGeometry(Part.LineSegment(V(-8.697024, 2.901998, 0), V(-7.799669, 6.024331, 0)), False)
sketch3.addGeometry(Part.LineSegment(V(-7.799669, 6.024331, 0), V(-10.619925, 21.15116, 0)), False)
sketch3.addGeometry(Part.LineSegment(V(-10.619925, 21.15116, 0), V(-20.875403, 22.817676, 0)), False)
sketch3.addGeometry(Part.LineSegment(V(-20.875403, 22.817676, 0), V(-16.388632, 34.483281, 0)), False)
sketch3.addGeometry(Part.LineSegment(V(-16.388632, 34.483281, 0), V(-6.68161, 30.749811, 0)), False)
sketch3.addGeometry(Part.LineSegment(V(-6.68161, 30.749811, 0), V(3.353163, 42.815854, 0)), False)
sketch3.addGeometry(Part.LineSegment(V(3.353163, 42.815854, 0), V(1.208506, 45.608398, 0)), False)
sketch3.addGeometry(Part.LineSegment(V(1.208506, 45.608398, 0), V(-8.395755, 37.528624, 0)), False)
sketch3.addGeometry(Part.LineSegment(V(-8.395755, 37.528624, 0), V(-15.416711, 42.745578, 0)), False)
sketch3.addConstraint(Sketcher.Constraint("Tangent", 0, 2, 1, 1))
sketch3.addConstraint(Sketcher.Constraint("Coincident", 1, 2, 2, 1))
sketch3.addConstraint(Sketcher.Constraint("Coincident", 2, 2, 3, 1))
sketch3.addConstraint(Sketcher.Constraint("Coincident", 3, 2, 4, 1))
sketch3.addConstraint(Sketcher.Constraint("Coincident", 4, 2, 5, 1))
sketch3.addConstraint(Sketcher.Constraint("Coincident", 5, 2, 6, 1))
sketch3.addConstraint(Sketcher.Constraint("Coincident", 6, 2, 7, 1))
sketch3.addConstraint(Sketcher.Constraint("Coincident", 7, 2, 8, 1))
sketch3.addConstraint(Sketcher.Constraint("Coincident", 8, 2, 9, 1))
sketch3.addConstraint(Sketcher.Constraint("Coincident", 9, 2, 10, 1))
sketch3.addConstraint(Sketcher.Constraint("Coincident", 10, 2, 11, 1))
sketch3.addConstraint(Sketcher.Constraint("Coincident", 11, 2, 12, 1))
sketch3.addConstraint(Sketcher.Constraint("Coincident", 12, 2, 13, 1))
sketch3.addConstraint(Sketcher.Constraint("Coincident", 13, 2, 14, 1))
sketch3.addConstraint(Sketcher.Constraint("Coincident", 14, 2, 15, 1))
sketch3.addConstraint(Sketcher.Constraint("Coincident", 15, 2, 16, 1))
sketch3.addConstraint(Sketcher.Constraint("Coincident", 16, 2, 17, 1))
sketch3.addConstraint(Sketcher.Constraint("Coincident", 17, 2, 18, 1))
sketch3.addConstraint(Sketcher.Constraint("Coincident", 18, 2, 19, 1))
sketch3.addConstraint(Sketcher.Constraint("Coincident", 19, 2, 20, 1))
sketch3.addConstraint(Sketcher.Constraint("Coincident", 20, 2, 21, 1))
sketch3.addConstraint(Sketcher.Constraint("Coincident", 21, 2, 22, 1))
sketch3.addConstraint(Sketcher.Constraint("Coincident", 22, 2, 23, 1))
sketch3.addConstraint(Sketcher.Constraint("Coincident", 23, 2, 24, 1))
sketch3.addConstraint(Sketcher.Constraint("Coincident", 24, 2, 25, 1))
sketch3.addConstraint(Sketcher.Constraint("Coincident", 25, 2, 0, 1))
sketch3.addConstraint(Sketcher.Constraint("Horizontal", 7))
sketch3.addConstraint(Sketcher.Constraint("Horizontal", 16))
sketch3.addConstraint(Sketcher.Constraint("Equal", 0, 1))
sketch3.addConstraint(Sketcher.Constraint("Perpendicular", 4, 5))
sketch3.addConstraint(Sketcher.Constraint("Perpendicular", 20, 21))
sketch3.addConstraint(Sketcher.Constraint("Horizontal", 1, 3, 0, 2))
sketch3.addConstraint(Sketcher.Constraint("Horizontal", 10, 2, 18, 2))
sketch3.addConstraint(Sketcher.Constraint("Horizontal", 3, 2, 22, 2))
sketch3.addConstraint(Sketcher.Constraint("Vertical", 2, 2, 13, 2))
sketch3.addConstraint(Sketcher.Constraint("Distance", 19, Q("10.39 mm")))
sketch3.addConstraint(Sketcher.Constraint("DistanceY", -1, 1, 5, 2, Q("31.380998 mm")))
sketch3.addConstraint(Sketcher.Constraint("Radius", 0, Q("5.906733 mm")))
sketch3.addConstraint(Sketcher.Constraint("DistanceX", 3, 2, 0, 2, Q("24.292002 mm")))
sketch3.addConstraint(Sketcher.Constraint("DistanceY", 20, 2, 7, 2, Q("3.973998 mm")))
sketch3.addConstraint(Sketcher.Constraint("Distance", 10, Q("13.043398 mm")))
sketch3.addConstraint(Sketcher.Constraint("Distance", 20, Q("12.498698 mm")))
sketch3.addConstraint(Sketcher.Constraint("DistanceX", 7, 1, 7, 2, Q("2.17929 mm")))
sketch3.addConstraint(Sketcher.Constraint("DistanceX", 1, 2, -1, 1, Q("16.9267 mm")))
sketch3.addConstraint(Sketcher.Constraint("DistanceX", 2, 2, -1, 1, Q("24.8494 mm")))
sketch3.addConstraint(Sketcher.Constraint("DistanceY", 1, 2, 2, 2, Q("1.628399 mm")))
sketch3.addConstraint(Sketcher.Constraint("DistanceX", 10, 2, 8, 2, Q("19.091502 mm")))
sketch3.addConstraint(Sketcher.Constraint("DistanceX", 11, 2, 4, 2, Q("13.964399 mm")))
sketch3.addConstraint(Sketcher.Constraint("DistanceX", 12, 2, 9, 2, Q("3.190802 mm")))
sketch3.addConstraint(Sketcher.Constraint("DistanceX", 14, 2, 16, 2, Q("7.819801 mm")))
sketch3.addConstraint(Sketcher.Constraint("DistanceX", 14, 2, 18, 2, Q("5.8969 mm")))
sketch3.addConstraint(Sketcher.Constraint("DistanceY", 14, 2, 18, 2, Q("5.896899 mm")))
sketch3.addConstraint(Sketcher.Constraint("Distance", 4, Q("11.179321 mm")))
sketch3.addConstraint(Sketcher.Constraint("Distance", 5, Q("3.210472 mm")))
sketch3.addConstraint(Sketcher.Constraint("Distance", 6, Q("9.260681 mm")))
sketch3.addConstraint(Sketcher.Constraint("Distance", 8, Q("16.035551 mm")))
sketch3.addConstraint(Sketcher.Constraint("Distance", 18, Q("15.387488 mm")))
sketch3.addConstraint(Sketcher.Constraint("Distance", 23, Q("3.521059 mm")))
sketch3.addConstraint(Sketcher.Constraint("Distance", 24, Q("12.55088 mm")))
sketch3.addConstraint(Sketcher.Constraint("DistanceX", 16, 1, 16, 2, Q("2.692063 mm")))
sketch3.addConstraint(Sketcher.Constraint("DistanceY", -1, 1, 0, 3, Q("48.619682 mm")))
sketch3.addConstraint(Sketcher.Constraint("DistanceY", -1, 1, 1, 2, Q("43.11036 mm")))
sketch3.addConstraint(Sketcher.Constraint("DistanceX", 4, 2, -1, 1, Q("38.18152 mm")))
sketch3.addConstraint(Sketcher.Constraint("DistanceY", -1, 1, 6, 2, Q("38.457279 mm")))
sketch3.addConstraint(Sketcher.Constraint("DistanceX", 9, 2, -1, 1, Q("39.092909 mm")))
sketch3.addConstraint(Sketcher.Constraint("DistanceX", 10, 2, -1, 1, Q("49.590739 mm")))
sketch3.addConstraint(Sketcher.Constraint("DistanceY", -1, 1, 10, 2, Q("21.15116 mm")))
sketch3.addConstraint(Sketcher.Constraint("DistanceY", -1, 1, 11, 2, Q("19.638069 mm")))
sketch3.addConstraint(Sketcher.Constraint("DistanceX", 17, 2, -1, 1, Q("7.799669 mm")))
sketch3.addConstraint(Sketcher.Constraint("DistanceY", -1, 1, 17, 2, Q("6.024331 mm")))
sketch3.addConstraint(Sketcher.Constraint("DistanceX", 21, 2, -1, 1, Q("6.68161 mm")))
sketch3.addConstraint(Sketcher.Constraint("DistanceY", -1, 1, 21, 2, Q("30.749811 mm")))
sketch3.addConstraint(Sketcher.Constraint("DistanceX", 25, 2, -1, 1, Q("15.416711 mm")))
sketch3.addConstraint(Sketcher.Constraint("DistanceY", 12, 2, 11, 2, Q("13.741931 mm")))
sketch3.addConstraint(Sketcher.Constraint("DistanceY", 13, 2, 9, 2, Q("0.335012 mm")))
sketch3.addConstraint(Sketcher.Constraint("DistanceY", 15, 2, 8, 2, Q("19.871928 mm")))
sketch3.addConstraint(Sketcher.Constraint("DistanceX", 0, 3, 22, 2, Q("18.14987 mm")))
sketch3.addConstraint(Sketcher.Constraint("DistanceX", 0, 2, 23, 2, Q("10.09848 mm")))
sketch3.addConstraint(Sketcher.Constraint("DistanceX", 0, 2, 24, 2, Q("0.494219 mm")))
pad3 = body3.newObject("PartDesign::Pad", "Pad002")
pad3.Profile = sketch3
pad3.Length = 3

doc.recompute()
